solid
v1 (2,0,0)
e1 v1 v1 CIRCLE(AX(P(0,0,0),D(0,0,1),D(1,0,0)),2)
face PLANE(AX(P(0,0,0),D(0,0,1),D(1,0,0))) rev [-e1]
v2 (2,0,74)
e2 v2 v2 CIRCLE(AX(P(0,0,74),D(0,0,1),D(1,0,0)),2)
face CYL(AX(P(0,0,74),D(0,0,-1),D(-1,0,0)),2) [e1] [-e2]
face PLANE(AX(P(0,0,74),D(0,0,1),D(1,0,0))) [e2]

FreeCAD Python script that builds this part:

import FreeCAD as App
import Part
import Sketcher
from FreeCAD import Vector

doc = App.newDocument("Part")
body = doc.addObject("PartDesign::Body", "Body")

sketch1 = doc.addObject("Sketcher::SketchObject", "Sketch")
body.addObject(sketch1)
sketch1.AttachmentSupport = (doc.XY_Plane, [""])
sketch1.MapMode = "FlatFace"
sketch1.addGeometry(Part.Circle(Vector(0, 0, 0), Vector(0, 0, 1), 2), False)
sketch1.addConstraint([
    Sketcher.Constraint("Coincident", 0, 3, -1, 1),
    Sketcher.Constraint("Diameter", 0, 4.0),
])
pad1 = doc.addObject("PartDesign::Pad", "Pad")
body.addObject(pad1)
pad1.Profile = sketch1
pad1.Length = 74

doc.recompute()
